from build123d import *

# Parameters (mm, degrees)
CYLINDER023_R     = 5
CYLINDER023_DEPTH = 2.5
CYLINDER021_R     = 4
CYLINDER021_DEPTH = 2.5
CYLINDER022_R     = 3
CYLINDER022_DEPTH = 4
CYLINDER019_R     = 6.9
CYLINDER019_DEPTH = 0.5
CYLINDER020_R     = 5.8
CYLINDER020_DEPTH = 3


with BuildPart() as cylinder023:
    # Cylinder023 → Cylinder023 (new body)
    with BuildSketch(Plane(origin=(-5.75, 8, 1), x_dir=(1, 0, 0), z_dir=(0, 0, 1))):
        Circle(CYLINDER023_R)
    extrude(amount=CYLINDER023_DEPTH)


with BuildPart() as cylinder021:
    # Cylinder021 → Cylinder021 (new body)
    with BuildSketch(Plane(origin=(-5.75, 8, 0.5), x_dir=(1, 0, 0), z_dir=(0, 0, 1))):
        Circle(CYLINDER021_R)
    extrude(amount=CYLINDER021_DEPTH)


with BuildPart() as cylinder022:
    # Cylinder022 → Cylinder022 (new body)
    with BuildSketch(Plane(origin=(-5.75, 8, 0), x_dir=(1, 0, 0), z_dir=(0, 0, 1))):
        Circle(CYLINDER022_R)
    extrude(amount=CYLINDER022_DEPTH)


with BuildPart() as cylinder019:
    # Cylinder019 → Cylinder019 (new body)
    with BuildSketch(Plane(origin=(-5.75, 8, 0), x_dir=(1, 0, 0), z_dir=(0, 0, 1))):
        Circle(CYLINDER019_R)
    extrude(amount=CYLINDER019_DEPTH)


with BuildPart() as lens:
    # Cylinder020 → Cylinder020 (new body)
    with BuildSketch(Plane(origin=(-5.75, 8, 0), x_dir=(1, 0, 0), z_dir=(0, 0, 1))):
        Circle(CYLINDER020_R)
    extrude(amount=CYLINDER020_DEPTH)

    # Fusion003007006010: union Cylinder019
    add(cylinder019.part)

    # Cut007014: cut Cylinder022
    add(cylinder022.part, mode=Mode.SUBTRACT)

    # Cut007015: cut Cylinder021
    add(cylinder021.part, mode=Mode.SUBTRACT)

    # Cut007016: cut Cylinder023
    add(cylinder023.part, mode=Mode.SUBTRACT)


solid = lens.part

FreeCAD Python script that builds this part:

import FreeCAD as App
import Part
import Sketcher
from FreeCAD import Vector
Q = App.Units.Quantity

doc = App.newDocument("Part")
body = doc.addObject("PartDesign::Body", "Body")

# Sketch on XY plane
sketch1 = body.newObject("Sketcher::SketchObject", "Sketch")
sketch1.AttachmentSupport = (doc.getObject("XY_Plane"), [""])
sketch1.MapMode = "FlatFace"
sketch1.AttachmentOffset = App.Placement(Vector(0, 0, 1), App.Rotation())
sketch1.addGeometry(Part.Circle(Vector(-6, 8, 0), Vector(0, 0, 1), 5), False)
sketch1.addConstraint([
    Sketcher.Constraint("Diameter", 0, Q("10 mm")),
    Sketcher.Constraint("DistanceY", -1, 1, 0, 3, Q("8 mm")),
    Sketcher.Constraint("DistanceX", 0, 3, -1, 1, Q("5.75 mm")),
])
pad1 = body.newObject("PartDesign::Pad", "Pad")
pad1.Profile = sketch1
pad1.Length = 2.5
body2 = doc.addObject("PartDesign::Body", "Body001")

# Sketch on XY plane
sketch2 = body2.newObject("Sketcher::SketchObject", "Sketch001")
sketch2.AttachmentSupport = (doc.getObject("XY_Plane001"), [""])
sketch2.MapMode = "FlatFace"
sketch2.AttachmentOffset = App.Placement(Vector(0, 0, 0.5), App.Rotation())
sketch2.addGeometry(Part.Circle(Vector(-5.8, 8, 0), Vector(0, 0, 1), 4), False)
sketch2.addConstraint([
    Sketcher.Constraint("Diameter", 0, Q("8 mm")),
    Sketcher.Constraint("DistanceY", -1, 1, 0, 3, Q("8 mm")),
    Sketcher.Constraint("DistanceX", 0, 3, -1, 1, Q("5.75 mm")),
])
pad2 = body2.newObject("PartDesign::Pad", "Pad001")
pad2.Profile = sketch2
pad2.Length = 2.5
body3 = doc.addObject("PartDesign::Body", "Body002")

# Sketch on XY plane
sketch3 = body3.newObject("Sketcher::SketchObject", "Sketch002")
sketch3.AttachmentSupport = (doc.getObject("XY_Plane002"), [""])
sketch3.MapMode = "FlatFace"
sketch3.addGeometry(Part.Circle(Vector(-5.8, 8, 0), Vector(0, 0, 1), 3), False)
sketch3.addConstraint([
    Sketcher.Constraint("Diameter", 0, Q("6 mm")),
    Sketcher.Constraint("DistanceY", -1, 1, 0, 3, Q("8 mm")),
    Sketcher.Constraint("DistanceX", 0, 3, -1, 1, Q("5.75 mm")),
])
pad3 = body3.newObject("PartDesign::Pad", "Pad002")
pad3.Profile = sketch3
pad3.Length = 4
body4 = doc.addObject("PartDesign::Body", "Body003")

# Sketch on XY plane
sketch4 = body4.newObject("Sketcher::SketchObject", "Sketch003")
sketch4.AttachmentSupport = (doc.getObject("XY_Plane003"), [""])
sketch4.MapMode = "FlatFace"
sketch4.addGeometry(Part.Circle(Vector(-6, 8, 0), Vector(0, 0, 1), 7), False)
sketch4.addConstraint([
    Sketcher.Constraint("Diameter", 0, Q("13.8 mm")),
    Sketcher.Constraint("DistanceY", -1, 1, 0, 3, Q("8 mm")),
    Sketcher.Constraint("DistanceX", 0, 3, -1, 1, Q("5.75 mm")),
])
pad4 = body4.newObject("PartDesign::Pad", "Pad003")
pad4.Profile = sketch4
pad4.Length = 0.5
body5 = doc.addObject("PartDesign::Body", "Body004")

# Sketch on XY plane
sketch5 = body5.newObject("Sketcher::SketchObject", "Sketch004")
sketch5.AttachmentSupport = (doc.getObject("XY_Plane004"), [""])
sketch5.MapMode = "FlatFace"
sketch5.addGeometry(Part.Circle(Vector(-6, 8, 0), Vector(0, 0, 1), 6), False)
sketch5.addConstraint([
    Sketcher.Constraint("Diameter", 0, Q("11.6 mm")),
    Sketcher.Constraint("DistanceY", -1, 1, 0, 3, Q("8 mm")),
    Sketcher.Constraint("DistanceX", 0, 3, -1, 1, Q("5.75 mm")),
])
pad5 = body5.newObject("PartDesign::Pad", "Pad004")
pad5.Profile = sketch5
pad5.Length = 3
doc.recompute()

boolean = body5.newObject("PartDesign::Boolean", "Boolean")
boolean.Type = "Fuse"
boolean.addObjects([body4])
doc.recompute()

boolean2 = body5.newObject("PartDesign::Boolean", "Boolean001")
boolean2.Type = "Cut"
boolean2.addObjects([body3])
doc.recompute()

boolean3 = body5.newObject("PartDesign::Boolean", "Boolean002")
boolean3.Type = "Cut"
boolean3.addObjects([body2])
doc.recompute()

boolean4 = body5.newObject("PartDesign::Boolean", "Boolean003")
boolean4.Type = "Cut"
boolean4.addObjects([body])

doc.recompute()
